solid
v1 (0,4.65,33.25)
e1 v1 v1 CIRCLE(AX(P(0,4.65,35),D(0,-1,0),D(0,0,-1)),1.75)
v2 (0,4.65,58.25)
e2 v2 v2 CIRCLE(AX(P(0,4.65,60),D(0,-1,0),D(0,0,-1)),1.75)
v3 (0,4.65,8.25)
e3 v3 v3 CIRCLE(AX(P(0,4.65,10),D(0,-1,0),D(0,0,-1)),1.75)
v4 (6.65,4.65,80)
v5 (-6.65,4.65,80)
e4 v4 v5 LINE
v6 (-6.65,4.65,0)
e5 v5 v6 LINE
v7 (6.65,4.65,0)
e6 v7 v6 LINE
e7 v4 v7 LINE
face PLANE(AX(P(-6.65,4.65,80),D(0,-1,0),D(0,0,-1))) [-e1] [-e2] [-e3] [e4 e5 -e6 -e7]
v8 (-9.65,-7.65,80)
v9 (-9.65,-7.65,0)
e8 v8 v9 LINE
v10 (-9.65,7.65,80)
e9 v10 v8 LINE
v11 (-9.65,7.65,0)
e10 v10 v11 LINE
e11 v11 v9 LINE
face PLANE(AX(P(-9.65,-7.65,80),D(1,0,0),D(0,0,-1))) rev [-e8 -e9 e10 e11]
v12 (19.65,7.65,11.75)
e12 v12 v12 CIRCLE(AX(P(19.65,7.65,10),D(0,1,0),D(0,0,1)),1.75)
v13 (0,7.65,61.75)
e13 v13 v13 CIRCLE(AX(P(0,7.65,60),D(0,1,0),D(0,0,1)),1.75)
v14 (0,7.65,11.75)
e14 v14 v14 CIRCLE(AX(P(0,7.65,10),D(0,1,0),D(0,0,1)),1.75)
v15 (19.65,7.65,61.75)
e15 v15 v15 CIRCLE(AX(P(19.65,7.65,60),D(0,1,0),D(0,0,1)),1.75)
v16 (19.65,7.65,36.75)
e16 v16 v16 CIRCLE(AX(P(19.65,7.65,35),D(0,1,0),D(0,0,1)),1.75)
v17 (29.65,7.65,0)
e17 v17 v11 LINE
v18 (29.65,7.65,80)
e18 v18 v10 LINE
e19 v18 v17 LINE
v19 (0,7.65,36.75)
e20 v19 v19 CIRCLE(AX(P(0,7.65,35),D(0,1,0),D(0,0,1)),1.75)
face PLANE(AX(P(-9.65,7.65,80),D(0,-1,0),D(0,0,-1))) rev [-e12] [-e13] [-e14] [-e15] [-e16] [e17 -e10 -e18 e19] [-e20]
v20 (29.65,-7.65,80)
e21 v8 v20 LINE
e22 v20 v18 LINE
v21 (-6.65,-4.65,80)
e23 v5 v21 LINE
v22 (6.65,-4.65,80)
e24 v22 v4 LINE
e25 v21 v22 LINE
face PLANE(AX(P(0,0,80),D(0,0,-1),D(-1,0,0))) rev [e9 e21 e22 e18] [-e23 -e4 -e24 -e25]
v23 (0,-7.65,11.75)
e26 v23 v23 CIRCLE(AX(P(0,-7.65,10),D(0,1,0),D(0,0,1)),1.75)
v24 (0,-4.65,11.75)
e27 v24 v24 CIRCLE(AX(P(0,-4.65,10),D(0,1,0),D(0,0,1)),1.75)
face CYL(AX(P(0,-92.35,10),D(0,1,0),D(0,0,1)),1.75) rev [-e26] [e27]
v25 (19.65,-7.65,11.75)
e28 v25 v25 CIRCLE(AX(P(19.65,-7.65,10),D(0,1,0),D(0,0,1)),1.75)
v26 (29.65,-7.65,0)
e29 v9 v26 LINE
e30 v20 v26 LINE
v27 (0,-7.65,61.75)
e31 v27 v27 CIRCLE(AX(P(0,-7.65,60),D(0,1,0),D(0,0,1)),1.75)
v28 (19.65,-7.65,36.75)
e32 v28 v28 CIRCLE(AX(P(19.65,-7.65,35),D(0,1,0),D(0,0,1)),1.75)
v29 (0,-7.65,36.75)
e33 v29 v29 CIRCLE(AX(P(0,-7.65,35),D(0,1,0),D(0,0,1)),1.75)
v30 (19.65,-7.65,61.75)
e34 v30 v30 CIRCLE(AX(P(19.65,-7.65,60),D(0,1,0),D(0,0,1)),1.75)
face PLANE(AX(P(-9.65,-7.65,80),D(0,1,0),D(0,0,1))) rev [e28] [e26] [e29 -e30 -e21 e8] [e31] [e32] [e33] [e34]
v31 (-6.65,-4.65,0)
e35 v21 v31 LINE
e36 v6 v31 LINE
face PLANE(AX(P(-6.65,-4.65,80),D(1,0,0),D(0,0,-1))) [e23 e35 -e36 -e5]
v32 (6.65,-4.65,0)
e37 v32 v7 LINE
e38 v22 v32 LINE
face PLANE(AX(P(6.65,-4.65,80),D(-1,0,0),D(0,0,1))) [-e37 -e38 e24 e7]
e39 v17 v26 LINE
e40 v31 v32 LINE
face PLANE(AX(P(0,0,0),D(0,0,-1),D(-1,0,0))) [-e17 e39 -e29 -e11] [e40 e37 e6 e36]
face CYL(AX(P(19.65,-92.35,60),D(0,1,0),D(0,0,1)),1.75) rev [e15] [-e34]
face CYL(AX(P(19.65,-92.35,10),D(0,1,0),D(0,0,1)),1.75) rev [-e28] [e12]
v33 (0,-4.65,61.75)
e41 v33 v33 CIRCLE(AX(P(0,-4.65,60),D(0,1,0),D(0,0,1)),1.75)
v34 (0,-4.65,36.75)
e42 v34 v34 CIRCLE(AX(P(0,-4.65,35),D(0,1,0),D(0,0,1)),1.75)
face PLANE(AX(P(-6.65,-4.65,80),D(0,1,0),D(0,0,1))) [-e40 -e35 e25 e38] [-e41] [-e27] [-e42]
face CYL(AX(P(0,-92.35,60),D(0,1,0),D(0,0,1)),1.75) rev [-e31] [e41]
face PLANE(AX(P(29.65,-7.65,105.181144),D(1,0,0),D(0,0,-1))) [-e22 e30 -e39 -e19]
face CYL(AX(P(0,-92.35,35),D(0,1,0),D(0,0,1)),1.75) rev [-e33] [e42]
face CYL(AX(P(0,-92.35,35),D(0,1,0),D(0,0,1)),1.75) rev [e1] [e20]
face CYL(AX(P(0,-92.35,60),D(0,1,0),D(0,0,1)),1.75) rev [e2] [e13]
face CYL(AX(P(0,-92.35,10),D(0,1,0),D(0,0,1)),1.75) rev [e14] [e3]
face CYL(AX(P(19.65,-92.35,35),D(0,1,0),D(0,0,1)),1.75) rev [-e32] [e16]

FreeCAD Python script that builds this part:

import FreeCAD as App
import Part
import Sketcher

V = App.Vector
Q = App.Units.Quantity

doc = App.newDocument("Part")
body = doc.addObject("PartDesign::Body", "Body")

# Sketch on XY plane
sketch1 = body.newObject("Sketcher::SketchObject", "Sketch")
sketch1.AttachmentSupport = (doc.getObject("XY_Plane"), [""])
sketch1.MapMode = "FlatFace"
sketch1.addGeometry([
    Part.LineSegment(V(-10, 8, 0), V(-10, -8, 0)),  # 0
    Part.LineSegment(V(-10, -8, 0), V(10, -8, 0)),  # 1
    Part.LineSegment(V(10, -8, 0), V(10, 8, 0)),  # 2
    Part.LineSegment(V(10, 8, 0), V(-10, 8, 0)),  # 3
    Part.LineSegment(V(7, -5, 0), V(-7, -5, 0)),  # 4
    Part.LineSegment(V(-7, -5, 0), V(-7, 5, 0)),  # 5
    Part.LineSegment(V(-7, 5, 0), V(7, 5, 0)),  # 6
    Part.LineSegment(V(7, 5, 0), V(7, -5, 0)),  # 7
], False)
sketch1.addConstraint([
    Sketcher.Constraint("Coincident", 0, 2, 1, 1),
    Sketcher.Constraint("Coincident", 1, 2, 2, 1),
    Sketcher.Constraint("Coincident", 2, 2, 3, 1),
    Sketcher.Constraint("Coincident", 3, 2, 0, 1),
    Sketcher.Constraint("Coincident", 4, 2, 5, 1),
    Sketcher.Constraint("Coincident", 5, 2, 6, 1),
    Sketcher.Constraint("Coincident", 6, 2, 7, 1),
    Sketcher.Constraint("Coincident", 7, 2, 4, 1),
    Sketcher.Constraint("Vertical", 0),
    Sketcher.Constraint("Horizontal", 1),
    Sketcher.Constraint("Vertical", 2),
    Sketcher.Constraint("Horizontal", 3),
    Sketcher.Constraint("Horizontal", 4),
    Sketcher.Constraint("Vertical", 5),
    Sketcher.Constraint("Horizontal", 6),
    Sketcher.Constraint("Vertical", 7),
    Sketcher.Constraint("Symmetric", 0, 2, 2, 2, -1, 1),
    Sketcher.Constraint("Symmetric", 4, 2, 6, 2, -1, 1),
    Sketcher.Constraint("DistanceX", 1, 1, 1, 2, Q("19.3 mm")),
    Sketcher.Constraint("DistanceX", 4, 2, 4, 1, Q("13.3 mm")),
    Sketcher.Constraint("DistanceY", 0, 2, 0, 1, Q("15.3 mm")),
    Sketcher.Constraint("DistanceY", 5, 1, 5, 2, Q("9.3 mm")),
])
pad1 = body.newObject("PartDesign::Pad", "Pad")
pad1.Profile = sketch1
pad1.Length = 80

# Sketch on XZ plane
sketch2 = body.newObject("Sketcher::SketchObject", "Sketch001")
sketch2.AttachmentSupport = (doc.getObject("XZ_Plane"), [""])
sketch2.MapMode = "FlatFace"
sketch2.AttachmentOffset = App.Placement(V(0, 0, -7.65), App.Rotation())
sketch2.addGeometry([
    Part.Circle(V(0, 10, 0), V(0, 0, 1), 1.8),
    Part.Circle(V(0, 35, 0), V(0, 0, 1), 1.8),
    Part.Circle(V(0, 60, 0), V(0, 0, 1), 1.8),
], False)
sketch2.addConstraint([
    Sketcher.Constraint("Equal", 0, 1),
    Sketcher.Constraint("Equal", 1, 2),
    Sketcher.Constraint("PointOnObject", 0, 3, -2),
    Sketcher.Constraint("PointOnObject", 1, 3, -2),
    Sketcher.Constraint("PointOnObject", 2, 3, -2),
    Sketcher.Constraint("Diameter", 0, Q("3.5 mm")),
    Sketcher.Constraint("DistanceY", -1, 1, 0, 3, Q("10 mm")),
    Sketcher.Constraint("DistanceY", -1, 1, 1, 3, Q("35 mm")),
    Sketcher.Constraint("DistanceY", -1, 1, 2, 3, Q("60 mm")),
])
pocket1 = body.newObject("PartDesign::Pocket", "Pocket")
pocket1.Profile = sketch2
pocket1.Length = 100
pocket1.Reversed = True

# Sketch on XY plane
sketch3 = body.newObject("Sketcher::SketchObject", "Sketch002")
sketch3.AttachmentSupport = (doc.getObject("XY_Plane"), [""])
sketch3.MapMode = "FlatFace"
sketch3.addGeometry([
    Part.LineSegment(V(30, 8, 0), V(30, -8, 0)),
    Part.LineSegment(V(30, -8, 0), V(10, -8, 0)),
    Part.LineSegment(V(10, -8, 0), V(10, 8, 0)),
    Part.LineSegment(V(10, 8, 0), V(30, 8, 0)),
], False)
sketch3.addConstraint([
    Sketcher.Constraint("Coincident", 0, 2, 1, 1),
    Sketcher.Constraint("Coincident", 1, 2, 2, 1),
    Sketcher.Constraint("Coincident", 2, 2, 3, 1),
    Sketcher.Constraint("Coincident", 3, 2, 0, 1),
    Sketcher.Constraint("Vertical", 0),
    Sketcher.Constraint("Horizontal", 1),
    Sketcher.Constraint("Vertical", 2),
    Sketcher.Constraint("Horizontal", 3),
    Sketcher.Constraint("DistanceX", 1, 2, 1, 1, Q("20 mm")),
    Sketcher.Constraint("DistanceY", 0, 2, 0, 1, Q("15.3 mm")),
    Sketcher.Constraint("DistanceX", -1, 1, 0, 2, Q("29.65 mm")),
    Sketcher.Constraint("DistanceY", 0, 2, -1, 1, Q("7.65 mm")),
])
pad2 = body.newObject("PartDesign::Pad", "Pad001")
pad2.Profile = sketch3
pad2.Length = 80

# Sketch on XZ plane
sketch4 = body.newObject("Sketcher::SketchObject", "Sketch003")
sketch4.AttachmentSupport = (doc.getObject("XZ_Plane"), [""])
sketch4.MapMode = "FlatFace"
sketch4.AttachmentOffset = App.Placement(V(0, 0, -7.65), App.Rotation())
sketch4.addGeometry([
    Part.Circle(V(19.6, 10, 0), V(0, 0, 1), 1.8),
    Part.Circle(V(19.6, 35, 0), V(0, 0, 1), 1.8),
    Part.Circle(V(19.6, 60, 0), V(0, 0, 1), 1.8),
], False)
sketch4.addConstraint([
    Sketcher.Constraint("Equal", 0, 1),
    Sketcher.Constraint("Equal", 1, 2),
    Sketcher.Constraint("Vertical", 0, 3, 1, 3),
    Sketcher.Constraint("Vertical", 1, 3, 2, 3),
    Sketcher.Constraint("Diameter", 0, Q("3.5 mm")),
    Sketcher.Constraint("DistanceY", -1, 1, 0, 3, Q("10 mm")),
    Sketcher.Constraint("DistanceY", -1, 1, 1, 3, Q("35 mm")),
    Sketcher.Constraint("DistanceY", -1, 1, 2, 3, Q("60 mm")),
    Sketcher.Constraint("DistanceX", -1, 1, 0, 3, Q("19.65 mm")),
])
pocket2 = body.newObject("PartDesign::Pocket", "Pocket001")
pocket2.Profile = sketch4
pocket2.Length = 100
pocket2.Reversed = True

doc.recompute()
